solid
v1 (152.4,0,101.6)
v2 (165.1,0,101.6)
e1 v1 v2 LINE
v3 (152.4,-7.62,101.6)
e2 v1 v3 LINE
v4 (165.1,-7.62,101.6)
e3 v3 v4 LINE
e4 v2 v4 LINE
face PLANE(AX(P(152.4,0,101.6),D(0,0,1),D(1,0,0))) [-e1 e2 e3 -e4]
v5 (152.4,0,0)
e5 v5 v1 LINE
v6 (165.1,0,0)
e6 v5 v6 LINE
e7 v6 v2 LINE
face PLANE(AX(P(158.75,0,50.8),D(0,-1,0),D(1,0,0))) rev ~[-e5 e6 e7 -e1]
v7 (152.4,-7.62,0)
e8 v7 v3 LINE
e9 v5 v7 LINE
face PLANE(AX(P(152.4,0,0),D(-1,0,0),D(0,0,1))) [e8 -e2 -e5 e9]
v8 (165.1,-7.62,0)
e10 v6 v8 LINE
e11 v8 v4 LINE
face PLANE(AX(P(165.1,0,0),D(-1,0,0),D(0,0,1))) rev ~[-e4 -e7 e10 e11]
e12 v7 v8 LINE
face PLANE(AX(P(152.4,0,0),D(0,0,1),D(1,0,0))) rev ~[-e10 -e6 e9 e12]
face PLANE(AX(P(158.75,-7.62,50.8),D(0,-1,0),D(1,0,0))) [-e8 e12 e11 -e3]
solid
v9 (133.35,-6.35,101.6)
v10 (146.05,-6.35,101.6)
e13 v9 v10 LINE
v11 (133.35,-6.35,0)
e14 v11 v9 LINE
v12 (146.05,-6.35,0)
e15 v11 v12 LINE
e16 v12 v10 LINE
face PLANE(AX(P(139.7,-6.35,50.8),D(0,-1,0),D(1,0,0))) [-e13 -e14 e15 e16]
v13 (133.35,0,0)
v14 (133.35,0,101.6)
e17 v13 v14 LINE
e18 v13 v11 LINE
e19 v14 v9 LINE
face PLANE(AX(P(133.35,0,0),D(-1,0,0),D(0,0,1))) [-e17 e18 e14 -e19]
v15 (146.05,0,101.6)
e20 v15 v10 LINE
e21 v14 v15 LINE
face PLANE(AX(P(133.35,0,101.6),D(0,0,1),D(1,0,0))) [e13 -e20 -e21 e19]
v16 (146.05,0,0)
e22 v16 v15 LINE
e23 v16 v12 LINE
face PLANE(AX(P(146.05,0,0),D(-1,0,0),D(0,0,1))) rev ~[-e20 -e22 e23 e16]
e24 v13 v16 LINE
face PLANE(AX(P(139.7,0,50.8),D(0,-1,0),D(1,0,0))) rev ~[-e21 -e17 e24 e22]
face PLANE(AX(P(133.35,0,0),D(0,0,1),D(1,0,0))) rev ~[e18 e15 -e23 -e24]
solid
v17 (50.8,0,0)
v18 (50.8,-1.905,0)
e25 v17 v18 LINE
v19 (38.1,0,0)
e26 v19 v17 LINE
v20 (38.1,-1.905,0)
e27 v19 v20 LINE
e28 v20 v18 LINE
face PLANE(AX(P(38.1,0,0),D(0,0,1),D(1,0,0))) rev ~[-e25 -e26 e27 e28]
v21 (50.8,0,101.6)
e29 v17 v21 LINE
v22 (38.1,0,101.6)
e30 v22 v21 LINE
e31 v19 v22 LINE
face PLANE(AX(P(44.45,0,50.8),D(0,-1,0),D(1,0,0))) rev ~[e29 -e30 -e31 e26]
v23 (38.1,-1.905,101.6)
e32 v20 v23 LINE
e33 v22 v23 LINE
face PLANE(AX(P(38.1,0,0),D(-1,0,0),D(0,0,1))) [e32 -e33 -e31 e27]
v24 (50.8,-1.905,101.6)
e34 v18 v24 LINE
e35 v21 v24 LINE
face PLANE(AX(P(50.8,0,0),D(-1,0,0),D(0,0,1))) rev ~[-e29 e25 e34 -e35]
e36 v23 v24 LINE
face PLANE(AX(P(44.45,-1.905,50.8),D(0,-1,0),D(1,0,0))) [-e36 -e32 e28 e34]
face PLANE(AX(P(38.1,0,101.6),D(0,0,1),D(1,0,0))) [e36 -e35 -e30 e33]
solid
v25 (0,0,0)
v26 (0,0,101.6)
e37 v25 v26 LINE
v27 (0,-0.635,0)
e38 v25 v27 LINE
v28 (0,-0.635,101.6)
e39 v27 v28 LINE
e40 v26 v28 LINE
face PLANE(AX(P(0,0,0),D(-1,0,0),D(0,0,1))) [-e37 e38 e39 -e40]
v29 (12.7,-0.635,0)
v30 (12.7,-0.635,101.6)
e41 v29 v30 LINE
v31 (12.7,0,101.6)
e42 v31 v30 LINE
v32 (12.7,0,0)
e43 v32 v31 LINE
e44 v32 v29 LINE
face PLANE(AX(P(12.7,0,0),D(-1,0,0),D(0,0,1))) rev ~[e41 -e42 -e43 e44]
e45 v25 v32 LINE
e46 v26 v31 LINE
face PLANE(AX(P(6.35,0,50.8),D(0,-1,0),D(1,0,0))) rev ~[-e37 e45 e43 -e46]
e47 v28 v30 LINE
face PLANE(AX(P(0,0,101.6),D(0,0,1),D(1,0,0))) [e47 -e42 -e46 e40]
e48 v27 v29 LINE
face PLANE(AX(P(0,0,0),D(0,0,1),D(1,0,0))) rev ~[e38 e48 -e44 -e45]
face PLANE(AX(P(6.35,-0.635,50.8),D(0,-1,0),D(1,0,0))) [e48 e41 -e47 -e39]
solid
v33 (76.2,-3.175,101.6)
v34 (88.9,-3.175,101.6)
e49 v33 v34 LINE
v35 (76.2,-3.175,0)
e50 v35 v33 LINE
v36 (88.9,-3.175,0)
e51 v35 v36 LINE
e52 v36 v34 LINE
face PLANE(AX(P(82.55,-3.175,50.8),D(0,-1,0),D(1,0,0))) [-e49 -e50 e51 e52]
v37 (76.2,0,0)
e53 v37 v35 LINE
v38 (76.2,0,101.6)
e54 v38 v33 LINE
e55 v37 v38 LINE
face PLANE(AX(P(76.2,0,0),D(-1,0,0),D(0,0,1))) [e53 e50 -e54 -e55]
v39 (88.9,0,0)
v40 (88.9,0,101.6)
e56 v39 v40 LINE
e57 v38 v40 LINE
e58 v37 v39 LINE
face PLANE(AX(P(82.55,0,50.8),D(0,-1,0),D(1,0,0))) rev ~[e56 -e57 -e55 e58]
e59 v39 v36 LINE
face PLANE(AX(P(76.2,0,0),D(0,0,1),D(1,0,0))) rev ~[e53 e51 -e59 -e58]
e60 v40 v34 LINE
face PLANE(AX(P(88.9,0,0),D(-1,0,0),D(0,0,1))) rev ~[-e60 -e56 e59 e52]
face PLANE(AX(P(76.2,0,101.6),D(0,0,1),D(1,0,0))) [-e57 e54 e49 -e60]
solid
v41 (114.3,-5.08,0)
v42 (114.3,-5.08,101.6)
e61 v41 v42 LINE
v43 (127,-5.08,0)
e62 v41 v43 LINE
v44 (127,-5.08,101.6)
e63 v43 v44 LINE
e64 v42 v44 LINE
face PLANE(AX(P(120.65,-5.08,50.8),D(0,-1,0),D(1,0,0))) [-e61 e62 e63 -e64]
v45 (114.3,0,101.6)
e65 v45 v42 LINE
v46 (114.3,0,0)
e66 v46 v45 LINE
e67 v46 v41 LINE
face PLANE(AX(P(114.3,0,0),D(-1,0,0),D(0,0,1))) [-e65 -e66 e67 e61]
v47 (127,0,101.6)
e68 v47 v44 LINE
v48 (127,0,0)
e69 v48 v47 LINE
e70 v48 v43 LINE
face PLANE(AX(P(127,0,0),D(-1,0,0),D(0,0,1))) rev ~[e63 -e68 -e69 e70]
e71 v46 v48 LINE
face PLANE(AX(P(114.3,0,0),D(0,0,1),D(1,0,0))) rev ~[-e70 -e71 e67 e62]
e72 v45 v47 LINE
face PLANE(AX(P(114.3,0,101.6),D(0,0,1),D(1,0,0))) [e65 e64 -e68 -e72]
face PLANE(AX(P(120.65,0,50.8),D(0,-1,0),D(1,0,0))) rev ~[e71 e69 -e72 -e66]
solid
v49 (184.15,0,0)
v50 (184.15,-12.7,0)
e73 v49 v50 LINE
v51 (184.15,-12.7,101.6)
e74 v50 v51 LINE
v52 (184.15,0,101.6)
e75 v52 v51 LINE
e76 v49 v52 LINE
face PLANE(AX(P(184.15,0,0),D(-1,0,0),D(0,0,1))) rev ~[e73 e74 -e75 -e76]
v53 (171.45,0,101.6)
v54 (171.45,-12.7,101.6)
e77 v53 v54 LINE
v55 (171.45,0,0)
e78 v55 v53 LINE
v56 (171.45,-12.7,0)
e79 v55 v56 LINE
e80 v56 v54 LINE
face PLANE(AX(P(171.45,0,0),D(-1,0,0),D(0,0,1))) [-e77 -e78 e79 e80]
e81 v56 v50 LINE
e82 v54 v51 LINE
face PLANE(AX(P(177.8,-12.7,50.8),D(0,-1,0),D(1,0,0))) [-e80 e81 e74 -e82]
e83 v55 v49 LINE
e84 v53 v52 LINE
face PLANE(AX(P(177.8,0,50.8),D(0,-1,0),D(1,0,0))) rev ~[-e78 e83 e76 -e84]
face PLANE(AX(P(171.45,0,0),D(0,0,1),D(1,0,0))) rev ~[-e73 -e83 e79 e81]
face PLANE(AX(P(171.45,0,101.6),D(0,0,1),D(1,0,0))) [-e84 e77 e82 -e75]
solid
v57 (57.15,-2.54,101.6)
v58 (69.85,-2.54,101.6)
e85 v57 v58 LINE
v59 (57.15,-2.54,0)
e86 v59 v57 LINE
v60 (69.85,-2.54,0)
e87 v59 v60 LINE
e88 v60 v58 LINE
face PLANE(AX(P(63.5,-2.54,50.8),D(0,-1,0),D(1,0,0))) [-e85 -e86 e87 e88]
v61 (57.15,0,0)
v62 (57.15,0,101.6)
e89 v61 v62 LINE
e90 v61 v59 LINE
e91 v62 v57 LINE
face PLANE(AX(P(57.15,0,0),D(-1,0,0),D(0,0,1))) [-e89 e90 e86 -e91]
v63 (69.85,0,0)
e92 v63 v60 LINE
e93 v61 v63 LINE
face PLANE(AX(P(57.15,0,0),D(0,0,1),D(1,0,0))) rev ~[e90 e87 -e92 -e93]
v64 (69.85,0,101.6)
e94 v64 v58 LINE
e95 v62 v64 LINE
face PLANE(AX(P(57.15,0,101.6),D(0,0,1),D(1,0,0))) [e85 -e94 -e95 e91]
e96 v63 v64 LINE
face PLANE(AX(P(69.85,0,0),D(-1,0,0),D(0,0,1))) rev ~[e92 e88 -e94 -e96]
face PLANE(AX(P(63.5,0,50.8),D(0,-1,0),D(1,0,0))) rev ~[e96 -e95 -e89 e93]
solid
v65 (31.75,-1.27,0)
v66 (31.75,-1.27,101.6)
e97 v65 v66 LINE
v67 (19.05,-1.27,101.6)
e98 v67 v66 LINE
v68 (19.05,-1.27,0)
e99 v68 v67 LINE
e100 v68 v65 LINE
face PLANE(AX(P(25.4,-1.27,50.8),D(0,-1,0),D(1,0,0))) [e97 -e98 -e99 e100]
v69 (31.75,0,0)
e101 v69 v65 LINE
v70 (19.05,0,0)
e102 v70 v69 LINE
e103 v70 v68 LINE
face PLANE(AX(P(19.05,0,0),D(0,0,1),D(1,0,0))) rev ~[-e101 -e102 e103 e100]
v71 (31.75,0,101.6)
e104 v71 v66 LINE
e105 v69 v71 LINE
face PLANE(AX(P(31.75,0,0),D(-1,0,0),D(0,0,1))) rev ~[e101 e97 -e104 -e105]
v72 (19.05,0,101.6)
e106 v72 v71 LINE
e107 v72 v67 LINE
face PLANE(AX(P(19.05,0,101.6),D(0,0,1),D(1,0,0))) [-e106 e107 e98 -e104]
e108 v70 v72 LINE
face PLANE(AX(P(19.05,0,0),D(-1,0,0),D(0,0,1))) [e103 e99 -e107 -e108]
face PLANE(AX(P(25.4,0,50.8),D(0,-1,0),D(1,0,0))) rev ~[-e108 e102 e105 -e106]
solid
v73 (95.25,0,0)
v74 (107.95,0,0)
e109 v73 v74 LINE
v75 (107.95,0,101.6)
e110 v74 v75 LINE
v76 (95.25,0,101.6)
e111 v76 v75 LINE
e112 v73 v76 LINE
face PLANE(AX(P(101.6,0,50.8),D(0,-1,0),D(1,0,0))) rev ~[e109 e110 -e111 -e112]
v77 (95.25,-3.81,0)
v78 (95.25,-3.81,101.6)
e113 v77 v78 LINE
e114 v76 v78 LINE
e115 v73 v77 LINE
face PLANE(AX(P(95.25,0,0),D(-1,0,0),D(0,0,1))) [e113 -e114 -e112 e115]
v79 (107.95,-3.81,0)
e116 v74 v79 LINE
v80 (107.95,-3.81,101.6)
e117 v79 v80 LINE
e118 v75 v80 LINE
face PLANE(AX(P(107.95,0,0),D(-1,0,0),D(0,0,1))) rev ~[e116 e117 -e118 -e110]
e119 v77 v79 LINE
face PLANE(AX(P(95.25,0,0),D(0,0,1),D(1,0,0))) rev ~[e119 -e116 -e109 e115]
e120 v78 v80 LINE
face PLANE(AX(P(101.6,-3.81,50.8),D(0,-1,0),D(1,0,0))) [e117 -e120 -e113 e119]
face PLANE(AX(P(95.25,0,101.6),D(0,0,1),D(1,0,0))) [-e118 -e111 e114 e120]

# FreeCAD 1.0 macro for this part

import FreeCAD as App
import Part
import Sketcher
Q = App.Units.Quantity


def add_polygon(sketch, points):
    """Adds a closed chain of lines whose ends are joined by coincident constraints."""
    first, n = sketch.GeometryCount, len(points)
    for a, b in zip(points, points[1:] + points[:1]):
        sketch.addGeometry(Part.LineSegment(App.Vector(*a, 0), App.Vector(*b, 0)), False)
    for i in range(n):
        sketch.addConstraint(Sketcher.Constraint("Coincident", first + i, 2, first + (i + 1) % n, 1))

doc = App.newDocument("Part")
params = doc.addObject("Spreadsheet::Sheet", "Params")
for row, (alias, value) in enumerate([
    ("sketch1_height", "4 in"),
    ("sketch1_width", "0.5 in"),
    ("pad1_length", "0.025 in"),
    ("sketch2_height", "4 in"),
    ("sketch2_width", "0.5 in"),
    ("pad2_length", "0.05 in"),
    ("sketch3_height", "4 in"),
    ("sketch3_width", "0.5 in"),
    ("pad3_length", "0.075 in"),
    ("sketch4_height", "4 in"),
    ("sketch4_width", "0.5 in"),
    ("pad4_length", "0.1 in"),
    ("sketch5_height", "4 in"),
    ("sketch5_width", "0.5 in"),
    ("pad5_length", "0.125 in"),
    ("sketch6_height", "4 in"),
    ("sketch6_width", "0.5 in"),
    ("pad6_length", "0.15 in"),
    ("sketch7_height", "4 in"),
    ("sketch7_width", "0.5 in"),
    ("pad7_length", "0.2 in"),
    ("sketch8_height", "4 in"),
    ("sketch8_width", "0.5 in"),
    ("pad8_length", "0.25 in"),
    ("sketch9_height", "4 in"),
    ("sketch9_width", "0.5 in"),
    ("pad9_length", "0.3 in"),
    ("sketch10_height", "4 in"),
    ("sketch10_width", "0.5 in"),
    ("pad10_length", "0.5 in"),
], start=1):
    params.set(f"A{row}", alias)
    params.set(f"B{row}", "=" + value)
    params.setAlias(f"B{row}", alias)

body = doc.addObject("PartDesign::Body", "Body")

# Sketch on XZ plane
sketch1 = doc.addObject("Sketcher::SketchObject", "Sketch")
body.addObject(sketch1)
sketch1.AttachmentSupport = (doc.XZ_Plane, [""])
sketch1.MapMode = "FlatFace"
add_polygon(sketch1, [(0, 101.6), (0, 0), (12.7, 0), (12.7, 101.6)])  # lines 0-3
sketch1.addConstraint(Sketcher.Constraint("Vertical", 0))
sketch1.addConstraint(Sketcher.Constraint("Horizontal", 1))
sketch1.addConstraint(Sketcher.Constraint("Vertical", 2))
sketch1.addConstraint(Sketcher.Constraint("Horizontal", 3))
sketch1.addConstraint(Sketcher.Constraint("Coincident", 0, 2, -1, 1))
sketch1.addConstraint(Sketcher.Constraint("DistanceY", 0, 2, 0, 1, Q("4 in")))
sketch1.addConstraint(Sketcher.Constraint("DistanceX", 1, 1, 1, 2, Q("0.5 in")))
sketch1.setExpression("Constraints[9]", "Params.sketch1_height")
sketch1.setExpression("Constraints[10]", "Params.sketch1_width")
pad1 = doc.addObject("PartDesign::Pad", "Pad")
body.addObject(pad1)
pad1.Profile = sketch1
pad1.setExpression("Length", "Params.pad1_length")
body2 = doc.addObject("PartDesign::Body", "Body001")

# Sketch on XZ plane
sketch2 = doc.addObject("Sketcher::SketchObject", "Sketch001")
body2.addObject(sketch2)
sketch2.AttachmentSupport = (doc.getObject("XZ_Plane001"), [""])
sketch2.MapMode = "FlatFace"
add_polygon(sketch2, [(19.05, 101.6), (19.05, 0), (31.75, 0), (31.75, 101.6)])  # lines 0-3
sketch2.addConstraint(Sketcher.Constraint("Vertical", 0))
sketch2.addConstraint(Sketcher.Constraint("Horizontal", 1))
sketch2.addConstraint(Sketcher.Constraint("Vertical", 2))
sketch2.addConstraint(Sketcher.Constraint("Horizontal", 3))
sketch2.addConstraint(Sketcher.Constraint("PointOnObject", 0, 2, -1))
sketch2.addConstraint(Sketcher.Constraint("DistanceY", 0, 2, 0, 1, Q("4 in")))
sketch2.addConstraint(Sketcher.Constraint("DistanceX", 1, 1, 1, 2, Q("0.5 in")))
sketch2.addConstraint(Sketcher.Constraint("DistanceX", -1, 1, 0, 2, Q("0.75 in")))
sketch2.setExpression("Constraints[9]", "Params.sketch2_height")
sketch2.setExpression("Constraints[10]", "Params.sketch2_width")
pad2 = doc.addObject("PartDesign::Pad", "Pad001")
body2.addObject(pad2)
pad2.Profile = sketch2
pad2.setExpression("Length", "Params.pad2_length")
body3 = doc.addObject("PartDesign::Body", "Body002")

# Sketch on XZ plane
sketch3 = doc.addObject("Sketcher::SketchObject", "Sketch002")
body3.addObject(sketch3)
sketch3.AttachmentSupport = (doc.getObject("XZ_Plane002"), [""])
sketch3.MapMode = "FlatFace"
add_polygon(sketch3, [(38.1, 101.6), (38.1, 0), (50.8, 0), (50.8, 101.6)])  # lines 0-3
sketch3.addConstraint(Sketcher.Constraint("Vertical", 0))
sketch3.addConstraint(Sketcher.Constraint("Horizontal", 1))
sketch3.addConstraint(Sketcher.Constraint("Vertical", 2))
sketch3.addConstraint(Sketcher.Constraint("Horizontal", 3))
sketch3.addConstraint(Sketcher.Constraint("PointOnObject", 0, 2, -1))
sketch3.addConstraint(Sketcher.Constraint("DistanceY", 0, 2, 0, 1, Q("4 in")))
sketch3.addConstraint(Sketcher.Constraint("DistanceX", 1, 1, 1, 2, Q("0.5 in")))
sketch3.addConstraint(Sketcher.Constraint("DistanceX", -1, 1, 1, 2, Q("2 in")))
sketch3.setExpression("Constraints[9]", "Params.sketch3_height")
sketch3.setExpression("Constraints[10]", "Params.sketch3_width")
pad3 = doc.addObject("PartDesign::Pad", "Pad002")
body3.addObject(pad3)
pad3.Profile = sketch3
pad3.setExpression("Length", "Params.pad3_length")
body4 = doc.addObject("PartDesign::Body", "Body003")

# Sketch on XZ plane
sketch4 = doc.addObject("Sketcher::SketchObject", "Sketch003")
body4.addObject(sketch4)
sketch4.AttachmentSupport = (doc.getObject("XZ_Plane003"), [""])
sketch4.MapMode = "FlatFace"
add_polygon(sketch4, [(57.15, 101.6), (57.15, 0), (69.85, 0), (69.85, 101.6)])  # lines 0-3
sketch4.addConstraint(Sketcher.Constraint("Vertical", 0))
sketch4.addConstraint(Sketcher.Constraint("Horizontal", 1))
sketch4.addConstraint(Sketcher.Constraint("Vertical", 2))
sketch4.addConstraint(Sketcher.Constraint("Horizontal", 3))
sketch4.addConstraint(Sketcher.Constraint("PointOnObject", 0, 2, -1))
sketch4.addConstraint(Sketcher.Constraint("DistanceY", 0, 2, 0, 1, Q("4 in")))
sketch4.addConstraint(Sketcher.Constraint("DistanceX", 1, 1, 1, 2, Q("0.5 in")))
sketch4.addConstraint(Sketcher.Constraint("DistanceX", -1, 1, 0, 2, Q("2.25 in")))
sketch4.setExpression("Constraints[9]", "Params.sketch4_height")
sketch4.setExpression("Constraints[10]", "Params.sketch4_width")
pad4 = doc.addObject("PartDesign::Pad", "Pad003")
body4.addObject(pad4)
pad4.Profile = sketch4
pad4.setExpression("Length", "Params.pad4_length")
body5 = doc.addObject("PartDesign::Body", "Body004")

# Sketch on XZ plane
sketch5 = doc.addObject("Sketcher::SketchObject", "Sketch004")
body5.addObject(sketch5)
sketch5.AttachmentSupport = (doc.getObject("XZ_Plane004"), [""])
sketch5.MapMode = "FlatFace"
add_polygon(sketch5, [(76.2, 101.6), (76.2, 0), (88.9, 0), (88.9, 101.6)])  # lines 0-3
sketch5.addConstraint(Sketcher.Constraint("Vertical", 0))
sketch5.addConstraint(Sketcher.Constraint("Horizontal", 1))
sketch5.addConstraint(Sketcher.Constraint("Vertical", 2))
sketch5.addConstraint(Sketcher.Constraint("Horizontal", 3))
sketch5.addConstraint(Sketcher.Constraint("PointOnObject", 0, 2, -1))
sketch5.addConstraint(Sketcher.Constraint("DistanceY", 0, 2, 0, 1, Q("4 in")))
sketch5.addConstraint(Sketcher.Constraint("DistanceX", 1, 1, 1, 2, Q("0.5 in")))
sketch5.addConstraint(Sketcher.Constraint("DistanceX", -1, 1, 0, 2, Q("3 in")))
sketch5.setExpression("Constraints[9]", "Params.sketch5_height")
sketch5.setExpression("Constraints[10]", "Params.sketch5_width")
pad5 = doc.addObject("PartDesign::Pad", "Pad004")
body5.addObject(pad5)
pad5.Profile = sketch5
pad5.setExpression("Length", "Params.pad5_length")
body6 = doc.addObject("PartDesign::Body", "Body005")

# Sketch on XZ plane
sketch6 = doc.addObject("Sketcher::SketchObject", "Sketch005")
body6.addObject(sketch6)
sketch6.AttachmentSupport = (doc.getObject("XZ_Plane005"), [""])
sketch6.MapMode = "FlatFace"
add_polygon(sketch6, [(95.25, 101.6), (95.25, 0), (107.95, 0), (107.95, 101.6)])  # lines 0-3
sketch6.addConstraint(Sketcher.Constraint("Vertical", 0))
sketch6.addConstraint(Sketcher.Constraint("Horizontal", 1))
sketch6.addConstraint(Sketcher.Constraint("Vertical", 2))
sketch6.addConstraint(Sketcher.Constraint("Horizontal", 3))
sketch6.addConstraint(Sketcher.Constraint("PointOnObject", 0, 2, -1))
sketch6.addConstraint(Sketcher.Constraint("DistanceY", 0, 2, 0, 1, Q("4 in")))
sketch6.addConstraint(Sketcher.Constraint("DistanceX", 1, 1, 1, 2, Q("0.5 in")))
sketch6.addConstraint(Sketcher.Constraint("DistanceX", -1, 1, 0, 2, Q("3.75 in")))
sketch6.setExpression("Constraints[9]", "Params.sketch6_height")
sketch6.setExpression("Constraints[10]", "Params.sketch6_width")
pad6 = doc.addObject("PartDesign::Pad", "Pad005")
body6.addObject(pad6)
pad6.Profile = sketch6
pad6.setExpression("Length", "Params.pad6_length")
body7 = doc.addObject("PartDesign::Body", "Body006")

# Sketch on XZ plane
sketch7 = doc.addObject("Sketcher::SketchObject", "Sketch006")
body7.addObject(sketch7)
sketch7.AttachmentSupport = (doc.getObject("XZ_Plane006"), [""])
sketch7.MapMode = "FlatFace"
add_polygon(sketch7, [(114.3, 101.6), (114.3, 0), (127, 0), (127, 101.6)])  # lines 0-3
sketch7.addConstraint(Sketcher.Constraint("Vertical", 0))
sketch7.addConstraint(Sketcher.Constraint("Horizontal", 1))
sketch7.addConstraint(Sketcher.Constraint("Vertical", 2))
sketch7.addConstraint(Sketcher.Constraint("Horizontal", 3))
sketch7.addConstraint(Sketcher.Constraint("PointOnObject", 0, 2, -1))
sketch7.addConstraint(Sketcher.Constraint("DistanceY", 0, 2, 0, 1, Q("4 in")))
sketch7.addConstraint(Sketcher.Constraint("DistanceX", 1, 1, 1, 2, Q("0.5 in")))
sketch7.addConstraint(Sketcher.Constraint("DistanceX", -1, 1, 1, 2, Q("5 in")))
sketch7.setExpression("Constraints[9]", "Params.sketch7_height")
sketch7.setExpression("Constraints[10]", "Params.sketch7_width")
pad7 = doc.addObject("PartDesign::Pad", "Pad006")
body7.addObject(pad7)
pad7.Profile = sketch7
pad7.setExpression("Length", "Params.pad7_length")
body8 = doc.addObject("PartDesign::Body", "Body007")

# Sketch on XZ plane
sketch8 = doc.addObject("Sketcher::SketchObject", "Sketch007")
body8.addObject(sketch8)
sketch8.AttachmentSupport = (doc.getObject("XZ_Plane007"), [""])
sketch8.MapMode = "FlatFace"
add_polygon(sketch8, [(133.35, 101.6), (133.35, 0), (146.05, 0), (146.05, 101.6)])  # lines 0-3
sketch8.addConstraint(Sketcher.Constraint("Vertical", 0))
sketch8.addConstraint(Sketcher.Constraint("Horizontal", 1))
sketch8.addConstraint(Sketcher.Constraint("Vertical", 2))
sketch8.addConstraint(Sketcher.Constraint("Horizontal", 3))
sketch8.addConstraint(Sketcher.Constraint("PointOnObject", 0, 2, -1))
sketch8.addConstraint(Sketcher.Constraint("DistanceY", 0, 2, 0, 1, Q("4 in")))
sketch8.addConstraint(Sketcher.Constraint("DistanceX", 1, 1, 1, 2, Q("0.5 in")))
sketch8.addConstraint(Sketcher.Constraint("DistanceX", -1, 1, 0, 2, Q("5.25 in")))
sketch8.setExpression("Constraints[9]", "Params.sketch8_height")
sketch8.setExpression("Constraints[10]", "Params.sketch8_width")
pad8 = doc.addObject("PartDesign::Pad", "Pad007")
body8.addObject(pad8)
pad8.Profile = sketch8
pad8.setExpression("Length", "Params.pad8_length")
body9 = doc.addObject("PartDesign::Body", "Body008")

# Sketch on XZ plane
sketch9 = doc.addObject("Sketcher::SketchObject", "Sketch008")
body9.addObject(sketch9)
sketch9.AttachmentSupport = (doc.getObject("XZ_Plane008"), [""])
sketch9.MapMode = "FlatFace"
add_polygon(sketch9, [(152.4, 101.6), (152.4, 0), (165.1, 0), (165.1, 101.6)])  # lines 0-3
sketch9.addConstraint(Sketcher.Constraint("Vertical", 0))
sketch9.addConstraint(Sketcher.Constraint("Horizontal", 1))
sketch9.addConstraint(Sketcher.Constraint("Vertical", 2))
sketch9.addConstraint(Sketcher.Constraint("Horizontal", 3))
sketch9.addConstraint(Sketcher.Constraint("PointOnObject", 0, 2, -1))
sketch9.addConstraint(Sketcher.Constraint("DistanceY", 0, 2, 0, 1, Q("4 in")))
sketch9.addConstraint(Sketcher.Constraint("DistanceX", 1, 1, 1, 2, Q("0.5 in")))
sketch9.addConstraint(Sketcher.Constraint("DistanceX", -1, 1, 0, 2, Q("6 in")))
sketch9.setExpression("Constraints[9]", "Params.sketch9_height")
sketch9.setExpression("Constraints[10]", "Params.sketch9_width")
pad9 = doc.addObject("PartDesign::Pad", "Pad008")
body9.addObject(pad9)
pad9.Profile = sketch9
pad9.setExpression("Length", "Params.pad9_length")
body10 = doc.addObject("PartDesign::Body", "Body009")

# Sketch on XZ plane
sketch10 = doc.addObject("Sketcher::SketchObject", "Sketch009")
body10.addObject(sketch10)
sketch10.AttachmentSupport = (doc.getObject("XZ_Plane009"), [""])
sketch10.MapMode = "FlatFace"
add_polygon(sketch10, [(171.45, 101.6), (171.45, 0), (184.15, 0), (184.15, 101.6)])  # lines 0-3
sketch10.addConstraint(Sketcher.Constraint("Vertical", 0))
sketch10.addConstraint(Sketcher.Constraint("Horizontal", 1))
sketch10.addConstraint(Sketcher.Constraint("Vertical", 2))
sketch10.addConstraint(Sketcher.Constraint("Horizontal", 3))
sketch10.addConstraint(Sketcher.Constraint("PointOnObject", 0, 2, -1))
sketch10.addConstraint(Sketcher.Constraint("DistanceY", 0, 2, 0, 1, Q("4 in")))
sketch10.addConstraint(Sketcher.Constraint("DistanceX", 1, 1, 1, 2, Q("0.5 in")))
sketch10.addConstraint(Sketcher.Constraint("DistanceX", -1, 1, 0, 2, Q("6.75 in")))
sketch10.setExpression("Constraints[9]", "Params.sketch10_height")
sketch10.setExpression("Constraints[10]", "Params.sketch10_width")
pad10 = doc.addObject("PartDesign::Pad", "Pad009")
body10.addObject(pad10)
pad10.Profile = sketch10
pad10.setExpression("Length", "Params.pad10_length")

doc.recompute()
